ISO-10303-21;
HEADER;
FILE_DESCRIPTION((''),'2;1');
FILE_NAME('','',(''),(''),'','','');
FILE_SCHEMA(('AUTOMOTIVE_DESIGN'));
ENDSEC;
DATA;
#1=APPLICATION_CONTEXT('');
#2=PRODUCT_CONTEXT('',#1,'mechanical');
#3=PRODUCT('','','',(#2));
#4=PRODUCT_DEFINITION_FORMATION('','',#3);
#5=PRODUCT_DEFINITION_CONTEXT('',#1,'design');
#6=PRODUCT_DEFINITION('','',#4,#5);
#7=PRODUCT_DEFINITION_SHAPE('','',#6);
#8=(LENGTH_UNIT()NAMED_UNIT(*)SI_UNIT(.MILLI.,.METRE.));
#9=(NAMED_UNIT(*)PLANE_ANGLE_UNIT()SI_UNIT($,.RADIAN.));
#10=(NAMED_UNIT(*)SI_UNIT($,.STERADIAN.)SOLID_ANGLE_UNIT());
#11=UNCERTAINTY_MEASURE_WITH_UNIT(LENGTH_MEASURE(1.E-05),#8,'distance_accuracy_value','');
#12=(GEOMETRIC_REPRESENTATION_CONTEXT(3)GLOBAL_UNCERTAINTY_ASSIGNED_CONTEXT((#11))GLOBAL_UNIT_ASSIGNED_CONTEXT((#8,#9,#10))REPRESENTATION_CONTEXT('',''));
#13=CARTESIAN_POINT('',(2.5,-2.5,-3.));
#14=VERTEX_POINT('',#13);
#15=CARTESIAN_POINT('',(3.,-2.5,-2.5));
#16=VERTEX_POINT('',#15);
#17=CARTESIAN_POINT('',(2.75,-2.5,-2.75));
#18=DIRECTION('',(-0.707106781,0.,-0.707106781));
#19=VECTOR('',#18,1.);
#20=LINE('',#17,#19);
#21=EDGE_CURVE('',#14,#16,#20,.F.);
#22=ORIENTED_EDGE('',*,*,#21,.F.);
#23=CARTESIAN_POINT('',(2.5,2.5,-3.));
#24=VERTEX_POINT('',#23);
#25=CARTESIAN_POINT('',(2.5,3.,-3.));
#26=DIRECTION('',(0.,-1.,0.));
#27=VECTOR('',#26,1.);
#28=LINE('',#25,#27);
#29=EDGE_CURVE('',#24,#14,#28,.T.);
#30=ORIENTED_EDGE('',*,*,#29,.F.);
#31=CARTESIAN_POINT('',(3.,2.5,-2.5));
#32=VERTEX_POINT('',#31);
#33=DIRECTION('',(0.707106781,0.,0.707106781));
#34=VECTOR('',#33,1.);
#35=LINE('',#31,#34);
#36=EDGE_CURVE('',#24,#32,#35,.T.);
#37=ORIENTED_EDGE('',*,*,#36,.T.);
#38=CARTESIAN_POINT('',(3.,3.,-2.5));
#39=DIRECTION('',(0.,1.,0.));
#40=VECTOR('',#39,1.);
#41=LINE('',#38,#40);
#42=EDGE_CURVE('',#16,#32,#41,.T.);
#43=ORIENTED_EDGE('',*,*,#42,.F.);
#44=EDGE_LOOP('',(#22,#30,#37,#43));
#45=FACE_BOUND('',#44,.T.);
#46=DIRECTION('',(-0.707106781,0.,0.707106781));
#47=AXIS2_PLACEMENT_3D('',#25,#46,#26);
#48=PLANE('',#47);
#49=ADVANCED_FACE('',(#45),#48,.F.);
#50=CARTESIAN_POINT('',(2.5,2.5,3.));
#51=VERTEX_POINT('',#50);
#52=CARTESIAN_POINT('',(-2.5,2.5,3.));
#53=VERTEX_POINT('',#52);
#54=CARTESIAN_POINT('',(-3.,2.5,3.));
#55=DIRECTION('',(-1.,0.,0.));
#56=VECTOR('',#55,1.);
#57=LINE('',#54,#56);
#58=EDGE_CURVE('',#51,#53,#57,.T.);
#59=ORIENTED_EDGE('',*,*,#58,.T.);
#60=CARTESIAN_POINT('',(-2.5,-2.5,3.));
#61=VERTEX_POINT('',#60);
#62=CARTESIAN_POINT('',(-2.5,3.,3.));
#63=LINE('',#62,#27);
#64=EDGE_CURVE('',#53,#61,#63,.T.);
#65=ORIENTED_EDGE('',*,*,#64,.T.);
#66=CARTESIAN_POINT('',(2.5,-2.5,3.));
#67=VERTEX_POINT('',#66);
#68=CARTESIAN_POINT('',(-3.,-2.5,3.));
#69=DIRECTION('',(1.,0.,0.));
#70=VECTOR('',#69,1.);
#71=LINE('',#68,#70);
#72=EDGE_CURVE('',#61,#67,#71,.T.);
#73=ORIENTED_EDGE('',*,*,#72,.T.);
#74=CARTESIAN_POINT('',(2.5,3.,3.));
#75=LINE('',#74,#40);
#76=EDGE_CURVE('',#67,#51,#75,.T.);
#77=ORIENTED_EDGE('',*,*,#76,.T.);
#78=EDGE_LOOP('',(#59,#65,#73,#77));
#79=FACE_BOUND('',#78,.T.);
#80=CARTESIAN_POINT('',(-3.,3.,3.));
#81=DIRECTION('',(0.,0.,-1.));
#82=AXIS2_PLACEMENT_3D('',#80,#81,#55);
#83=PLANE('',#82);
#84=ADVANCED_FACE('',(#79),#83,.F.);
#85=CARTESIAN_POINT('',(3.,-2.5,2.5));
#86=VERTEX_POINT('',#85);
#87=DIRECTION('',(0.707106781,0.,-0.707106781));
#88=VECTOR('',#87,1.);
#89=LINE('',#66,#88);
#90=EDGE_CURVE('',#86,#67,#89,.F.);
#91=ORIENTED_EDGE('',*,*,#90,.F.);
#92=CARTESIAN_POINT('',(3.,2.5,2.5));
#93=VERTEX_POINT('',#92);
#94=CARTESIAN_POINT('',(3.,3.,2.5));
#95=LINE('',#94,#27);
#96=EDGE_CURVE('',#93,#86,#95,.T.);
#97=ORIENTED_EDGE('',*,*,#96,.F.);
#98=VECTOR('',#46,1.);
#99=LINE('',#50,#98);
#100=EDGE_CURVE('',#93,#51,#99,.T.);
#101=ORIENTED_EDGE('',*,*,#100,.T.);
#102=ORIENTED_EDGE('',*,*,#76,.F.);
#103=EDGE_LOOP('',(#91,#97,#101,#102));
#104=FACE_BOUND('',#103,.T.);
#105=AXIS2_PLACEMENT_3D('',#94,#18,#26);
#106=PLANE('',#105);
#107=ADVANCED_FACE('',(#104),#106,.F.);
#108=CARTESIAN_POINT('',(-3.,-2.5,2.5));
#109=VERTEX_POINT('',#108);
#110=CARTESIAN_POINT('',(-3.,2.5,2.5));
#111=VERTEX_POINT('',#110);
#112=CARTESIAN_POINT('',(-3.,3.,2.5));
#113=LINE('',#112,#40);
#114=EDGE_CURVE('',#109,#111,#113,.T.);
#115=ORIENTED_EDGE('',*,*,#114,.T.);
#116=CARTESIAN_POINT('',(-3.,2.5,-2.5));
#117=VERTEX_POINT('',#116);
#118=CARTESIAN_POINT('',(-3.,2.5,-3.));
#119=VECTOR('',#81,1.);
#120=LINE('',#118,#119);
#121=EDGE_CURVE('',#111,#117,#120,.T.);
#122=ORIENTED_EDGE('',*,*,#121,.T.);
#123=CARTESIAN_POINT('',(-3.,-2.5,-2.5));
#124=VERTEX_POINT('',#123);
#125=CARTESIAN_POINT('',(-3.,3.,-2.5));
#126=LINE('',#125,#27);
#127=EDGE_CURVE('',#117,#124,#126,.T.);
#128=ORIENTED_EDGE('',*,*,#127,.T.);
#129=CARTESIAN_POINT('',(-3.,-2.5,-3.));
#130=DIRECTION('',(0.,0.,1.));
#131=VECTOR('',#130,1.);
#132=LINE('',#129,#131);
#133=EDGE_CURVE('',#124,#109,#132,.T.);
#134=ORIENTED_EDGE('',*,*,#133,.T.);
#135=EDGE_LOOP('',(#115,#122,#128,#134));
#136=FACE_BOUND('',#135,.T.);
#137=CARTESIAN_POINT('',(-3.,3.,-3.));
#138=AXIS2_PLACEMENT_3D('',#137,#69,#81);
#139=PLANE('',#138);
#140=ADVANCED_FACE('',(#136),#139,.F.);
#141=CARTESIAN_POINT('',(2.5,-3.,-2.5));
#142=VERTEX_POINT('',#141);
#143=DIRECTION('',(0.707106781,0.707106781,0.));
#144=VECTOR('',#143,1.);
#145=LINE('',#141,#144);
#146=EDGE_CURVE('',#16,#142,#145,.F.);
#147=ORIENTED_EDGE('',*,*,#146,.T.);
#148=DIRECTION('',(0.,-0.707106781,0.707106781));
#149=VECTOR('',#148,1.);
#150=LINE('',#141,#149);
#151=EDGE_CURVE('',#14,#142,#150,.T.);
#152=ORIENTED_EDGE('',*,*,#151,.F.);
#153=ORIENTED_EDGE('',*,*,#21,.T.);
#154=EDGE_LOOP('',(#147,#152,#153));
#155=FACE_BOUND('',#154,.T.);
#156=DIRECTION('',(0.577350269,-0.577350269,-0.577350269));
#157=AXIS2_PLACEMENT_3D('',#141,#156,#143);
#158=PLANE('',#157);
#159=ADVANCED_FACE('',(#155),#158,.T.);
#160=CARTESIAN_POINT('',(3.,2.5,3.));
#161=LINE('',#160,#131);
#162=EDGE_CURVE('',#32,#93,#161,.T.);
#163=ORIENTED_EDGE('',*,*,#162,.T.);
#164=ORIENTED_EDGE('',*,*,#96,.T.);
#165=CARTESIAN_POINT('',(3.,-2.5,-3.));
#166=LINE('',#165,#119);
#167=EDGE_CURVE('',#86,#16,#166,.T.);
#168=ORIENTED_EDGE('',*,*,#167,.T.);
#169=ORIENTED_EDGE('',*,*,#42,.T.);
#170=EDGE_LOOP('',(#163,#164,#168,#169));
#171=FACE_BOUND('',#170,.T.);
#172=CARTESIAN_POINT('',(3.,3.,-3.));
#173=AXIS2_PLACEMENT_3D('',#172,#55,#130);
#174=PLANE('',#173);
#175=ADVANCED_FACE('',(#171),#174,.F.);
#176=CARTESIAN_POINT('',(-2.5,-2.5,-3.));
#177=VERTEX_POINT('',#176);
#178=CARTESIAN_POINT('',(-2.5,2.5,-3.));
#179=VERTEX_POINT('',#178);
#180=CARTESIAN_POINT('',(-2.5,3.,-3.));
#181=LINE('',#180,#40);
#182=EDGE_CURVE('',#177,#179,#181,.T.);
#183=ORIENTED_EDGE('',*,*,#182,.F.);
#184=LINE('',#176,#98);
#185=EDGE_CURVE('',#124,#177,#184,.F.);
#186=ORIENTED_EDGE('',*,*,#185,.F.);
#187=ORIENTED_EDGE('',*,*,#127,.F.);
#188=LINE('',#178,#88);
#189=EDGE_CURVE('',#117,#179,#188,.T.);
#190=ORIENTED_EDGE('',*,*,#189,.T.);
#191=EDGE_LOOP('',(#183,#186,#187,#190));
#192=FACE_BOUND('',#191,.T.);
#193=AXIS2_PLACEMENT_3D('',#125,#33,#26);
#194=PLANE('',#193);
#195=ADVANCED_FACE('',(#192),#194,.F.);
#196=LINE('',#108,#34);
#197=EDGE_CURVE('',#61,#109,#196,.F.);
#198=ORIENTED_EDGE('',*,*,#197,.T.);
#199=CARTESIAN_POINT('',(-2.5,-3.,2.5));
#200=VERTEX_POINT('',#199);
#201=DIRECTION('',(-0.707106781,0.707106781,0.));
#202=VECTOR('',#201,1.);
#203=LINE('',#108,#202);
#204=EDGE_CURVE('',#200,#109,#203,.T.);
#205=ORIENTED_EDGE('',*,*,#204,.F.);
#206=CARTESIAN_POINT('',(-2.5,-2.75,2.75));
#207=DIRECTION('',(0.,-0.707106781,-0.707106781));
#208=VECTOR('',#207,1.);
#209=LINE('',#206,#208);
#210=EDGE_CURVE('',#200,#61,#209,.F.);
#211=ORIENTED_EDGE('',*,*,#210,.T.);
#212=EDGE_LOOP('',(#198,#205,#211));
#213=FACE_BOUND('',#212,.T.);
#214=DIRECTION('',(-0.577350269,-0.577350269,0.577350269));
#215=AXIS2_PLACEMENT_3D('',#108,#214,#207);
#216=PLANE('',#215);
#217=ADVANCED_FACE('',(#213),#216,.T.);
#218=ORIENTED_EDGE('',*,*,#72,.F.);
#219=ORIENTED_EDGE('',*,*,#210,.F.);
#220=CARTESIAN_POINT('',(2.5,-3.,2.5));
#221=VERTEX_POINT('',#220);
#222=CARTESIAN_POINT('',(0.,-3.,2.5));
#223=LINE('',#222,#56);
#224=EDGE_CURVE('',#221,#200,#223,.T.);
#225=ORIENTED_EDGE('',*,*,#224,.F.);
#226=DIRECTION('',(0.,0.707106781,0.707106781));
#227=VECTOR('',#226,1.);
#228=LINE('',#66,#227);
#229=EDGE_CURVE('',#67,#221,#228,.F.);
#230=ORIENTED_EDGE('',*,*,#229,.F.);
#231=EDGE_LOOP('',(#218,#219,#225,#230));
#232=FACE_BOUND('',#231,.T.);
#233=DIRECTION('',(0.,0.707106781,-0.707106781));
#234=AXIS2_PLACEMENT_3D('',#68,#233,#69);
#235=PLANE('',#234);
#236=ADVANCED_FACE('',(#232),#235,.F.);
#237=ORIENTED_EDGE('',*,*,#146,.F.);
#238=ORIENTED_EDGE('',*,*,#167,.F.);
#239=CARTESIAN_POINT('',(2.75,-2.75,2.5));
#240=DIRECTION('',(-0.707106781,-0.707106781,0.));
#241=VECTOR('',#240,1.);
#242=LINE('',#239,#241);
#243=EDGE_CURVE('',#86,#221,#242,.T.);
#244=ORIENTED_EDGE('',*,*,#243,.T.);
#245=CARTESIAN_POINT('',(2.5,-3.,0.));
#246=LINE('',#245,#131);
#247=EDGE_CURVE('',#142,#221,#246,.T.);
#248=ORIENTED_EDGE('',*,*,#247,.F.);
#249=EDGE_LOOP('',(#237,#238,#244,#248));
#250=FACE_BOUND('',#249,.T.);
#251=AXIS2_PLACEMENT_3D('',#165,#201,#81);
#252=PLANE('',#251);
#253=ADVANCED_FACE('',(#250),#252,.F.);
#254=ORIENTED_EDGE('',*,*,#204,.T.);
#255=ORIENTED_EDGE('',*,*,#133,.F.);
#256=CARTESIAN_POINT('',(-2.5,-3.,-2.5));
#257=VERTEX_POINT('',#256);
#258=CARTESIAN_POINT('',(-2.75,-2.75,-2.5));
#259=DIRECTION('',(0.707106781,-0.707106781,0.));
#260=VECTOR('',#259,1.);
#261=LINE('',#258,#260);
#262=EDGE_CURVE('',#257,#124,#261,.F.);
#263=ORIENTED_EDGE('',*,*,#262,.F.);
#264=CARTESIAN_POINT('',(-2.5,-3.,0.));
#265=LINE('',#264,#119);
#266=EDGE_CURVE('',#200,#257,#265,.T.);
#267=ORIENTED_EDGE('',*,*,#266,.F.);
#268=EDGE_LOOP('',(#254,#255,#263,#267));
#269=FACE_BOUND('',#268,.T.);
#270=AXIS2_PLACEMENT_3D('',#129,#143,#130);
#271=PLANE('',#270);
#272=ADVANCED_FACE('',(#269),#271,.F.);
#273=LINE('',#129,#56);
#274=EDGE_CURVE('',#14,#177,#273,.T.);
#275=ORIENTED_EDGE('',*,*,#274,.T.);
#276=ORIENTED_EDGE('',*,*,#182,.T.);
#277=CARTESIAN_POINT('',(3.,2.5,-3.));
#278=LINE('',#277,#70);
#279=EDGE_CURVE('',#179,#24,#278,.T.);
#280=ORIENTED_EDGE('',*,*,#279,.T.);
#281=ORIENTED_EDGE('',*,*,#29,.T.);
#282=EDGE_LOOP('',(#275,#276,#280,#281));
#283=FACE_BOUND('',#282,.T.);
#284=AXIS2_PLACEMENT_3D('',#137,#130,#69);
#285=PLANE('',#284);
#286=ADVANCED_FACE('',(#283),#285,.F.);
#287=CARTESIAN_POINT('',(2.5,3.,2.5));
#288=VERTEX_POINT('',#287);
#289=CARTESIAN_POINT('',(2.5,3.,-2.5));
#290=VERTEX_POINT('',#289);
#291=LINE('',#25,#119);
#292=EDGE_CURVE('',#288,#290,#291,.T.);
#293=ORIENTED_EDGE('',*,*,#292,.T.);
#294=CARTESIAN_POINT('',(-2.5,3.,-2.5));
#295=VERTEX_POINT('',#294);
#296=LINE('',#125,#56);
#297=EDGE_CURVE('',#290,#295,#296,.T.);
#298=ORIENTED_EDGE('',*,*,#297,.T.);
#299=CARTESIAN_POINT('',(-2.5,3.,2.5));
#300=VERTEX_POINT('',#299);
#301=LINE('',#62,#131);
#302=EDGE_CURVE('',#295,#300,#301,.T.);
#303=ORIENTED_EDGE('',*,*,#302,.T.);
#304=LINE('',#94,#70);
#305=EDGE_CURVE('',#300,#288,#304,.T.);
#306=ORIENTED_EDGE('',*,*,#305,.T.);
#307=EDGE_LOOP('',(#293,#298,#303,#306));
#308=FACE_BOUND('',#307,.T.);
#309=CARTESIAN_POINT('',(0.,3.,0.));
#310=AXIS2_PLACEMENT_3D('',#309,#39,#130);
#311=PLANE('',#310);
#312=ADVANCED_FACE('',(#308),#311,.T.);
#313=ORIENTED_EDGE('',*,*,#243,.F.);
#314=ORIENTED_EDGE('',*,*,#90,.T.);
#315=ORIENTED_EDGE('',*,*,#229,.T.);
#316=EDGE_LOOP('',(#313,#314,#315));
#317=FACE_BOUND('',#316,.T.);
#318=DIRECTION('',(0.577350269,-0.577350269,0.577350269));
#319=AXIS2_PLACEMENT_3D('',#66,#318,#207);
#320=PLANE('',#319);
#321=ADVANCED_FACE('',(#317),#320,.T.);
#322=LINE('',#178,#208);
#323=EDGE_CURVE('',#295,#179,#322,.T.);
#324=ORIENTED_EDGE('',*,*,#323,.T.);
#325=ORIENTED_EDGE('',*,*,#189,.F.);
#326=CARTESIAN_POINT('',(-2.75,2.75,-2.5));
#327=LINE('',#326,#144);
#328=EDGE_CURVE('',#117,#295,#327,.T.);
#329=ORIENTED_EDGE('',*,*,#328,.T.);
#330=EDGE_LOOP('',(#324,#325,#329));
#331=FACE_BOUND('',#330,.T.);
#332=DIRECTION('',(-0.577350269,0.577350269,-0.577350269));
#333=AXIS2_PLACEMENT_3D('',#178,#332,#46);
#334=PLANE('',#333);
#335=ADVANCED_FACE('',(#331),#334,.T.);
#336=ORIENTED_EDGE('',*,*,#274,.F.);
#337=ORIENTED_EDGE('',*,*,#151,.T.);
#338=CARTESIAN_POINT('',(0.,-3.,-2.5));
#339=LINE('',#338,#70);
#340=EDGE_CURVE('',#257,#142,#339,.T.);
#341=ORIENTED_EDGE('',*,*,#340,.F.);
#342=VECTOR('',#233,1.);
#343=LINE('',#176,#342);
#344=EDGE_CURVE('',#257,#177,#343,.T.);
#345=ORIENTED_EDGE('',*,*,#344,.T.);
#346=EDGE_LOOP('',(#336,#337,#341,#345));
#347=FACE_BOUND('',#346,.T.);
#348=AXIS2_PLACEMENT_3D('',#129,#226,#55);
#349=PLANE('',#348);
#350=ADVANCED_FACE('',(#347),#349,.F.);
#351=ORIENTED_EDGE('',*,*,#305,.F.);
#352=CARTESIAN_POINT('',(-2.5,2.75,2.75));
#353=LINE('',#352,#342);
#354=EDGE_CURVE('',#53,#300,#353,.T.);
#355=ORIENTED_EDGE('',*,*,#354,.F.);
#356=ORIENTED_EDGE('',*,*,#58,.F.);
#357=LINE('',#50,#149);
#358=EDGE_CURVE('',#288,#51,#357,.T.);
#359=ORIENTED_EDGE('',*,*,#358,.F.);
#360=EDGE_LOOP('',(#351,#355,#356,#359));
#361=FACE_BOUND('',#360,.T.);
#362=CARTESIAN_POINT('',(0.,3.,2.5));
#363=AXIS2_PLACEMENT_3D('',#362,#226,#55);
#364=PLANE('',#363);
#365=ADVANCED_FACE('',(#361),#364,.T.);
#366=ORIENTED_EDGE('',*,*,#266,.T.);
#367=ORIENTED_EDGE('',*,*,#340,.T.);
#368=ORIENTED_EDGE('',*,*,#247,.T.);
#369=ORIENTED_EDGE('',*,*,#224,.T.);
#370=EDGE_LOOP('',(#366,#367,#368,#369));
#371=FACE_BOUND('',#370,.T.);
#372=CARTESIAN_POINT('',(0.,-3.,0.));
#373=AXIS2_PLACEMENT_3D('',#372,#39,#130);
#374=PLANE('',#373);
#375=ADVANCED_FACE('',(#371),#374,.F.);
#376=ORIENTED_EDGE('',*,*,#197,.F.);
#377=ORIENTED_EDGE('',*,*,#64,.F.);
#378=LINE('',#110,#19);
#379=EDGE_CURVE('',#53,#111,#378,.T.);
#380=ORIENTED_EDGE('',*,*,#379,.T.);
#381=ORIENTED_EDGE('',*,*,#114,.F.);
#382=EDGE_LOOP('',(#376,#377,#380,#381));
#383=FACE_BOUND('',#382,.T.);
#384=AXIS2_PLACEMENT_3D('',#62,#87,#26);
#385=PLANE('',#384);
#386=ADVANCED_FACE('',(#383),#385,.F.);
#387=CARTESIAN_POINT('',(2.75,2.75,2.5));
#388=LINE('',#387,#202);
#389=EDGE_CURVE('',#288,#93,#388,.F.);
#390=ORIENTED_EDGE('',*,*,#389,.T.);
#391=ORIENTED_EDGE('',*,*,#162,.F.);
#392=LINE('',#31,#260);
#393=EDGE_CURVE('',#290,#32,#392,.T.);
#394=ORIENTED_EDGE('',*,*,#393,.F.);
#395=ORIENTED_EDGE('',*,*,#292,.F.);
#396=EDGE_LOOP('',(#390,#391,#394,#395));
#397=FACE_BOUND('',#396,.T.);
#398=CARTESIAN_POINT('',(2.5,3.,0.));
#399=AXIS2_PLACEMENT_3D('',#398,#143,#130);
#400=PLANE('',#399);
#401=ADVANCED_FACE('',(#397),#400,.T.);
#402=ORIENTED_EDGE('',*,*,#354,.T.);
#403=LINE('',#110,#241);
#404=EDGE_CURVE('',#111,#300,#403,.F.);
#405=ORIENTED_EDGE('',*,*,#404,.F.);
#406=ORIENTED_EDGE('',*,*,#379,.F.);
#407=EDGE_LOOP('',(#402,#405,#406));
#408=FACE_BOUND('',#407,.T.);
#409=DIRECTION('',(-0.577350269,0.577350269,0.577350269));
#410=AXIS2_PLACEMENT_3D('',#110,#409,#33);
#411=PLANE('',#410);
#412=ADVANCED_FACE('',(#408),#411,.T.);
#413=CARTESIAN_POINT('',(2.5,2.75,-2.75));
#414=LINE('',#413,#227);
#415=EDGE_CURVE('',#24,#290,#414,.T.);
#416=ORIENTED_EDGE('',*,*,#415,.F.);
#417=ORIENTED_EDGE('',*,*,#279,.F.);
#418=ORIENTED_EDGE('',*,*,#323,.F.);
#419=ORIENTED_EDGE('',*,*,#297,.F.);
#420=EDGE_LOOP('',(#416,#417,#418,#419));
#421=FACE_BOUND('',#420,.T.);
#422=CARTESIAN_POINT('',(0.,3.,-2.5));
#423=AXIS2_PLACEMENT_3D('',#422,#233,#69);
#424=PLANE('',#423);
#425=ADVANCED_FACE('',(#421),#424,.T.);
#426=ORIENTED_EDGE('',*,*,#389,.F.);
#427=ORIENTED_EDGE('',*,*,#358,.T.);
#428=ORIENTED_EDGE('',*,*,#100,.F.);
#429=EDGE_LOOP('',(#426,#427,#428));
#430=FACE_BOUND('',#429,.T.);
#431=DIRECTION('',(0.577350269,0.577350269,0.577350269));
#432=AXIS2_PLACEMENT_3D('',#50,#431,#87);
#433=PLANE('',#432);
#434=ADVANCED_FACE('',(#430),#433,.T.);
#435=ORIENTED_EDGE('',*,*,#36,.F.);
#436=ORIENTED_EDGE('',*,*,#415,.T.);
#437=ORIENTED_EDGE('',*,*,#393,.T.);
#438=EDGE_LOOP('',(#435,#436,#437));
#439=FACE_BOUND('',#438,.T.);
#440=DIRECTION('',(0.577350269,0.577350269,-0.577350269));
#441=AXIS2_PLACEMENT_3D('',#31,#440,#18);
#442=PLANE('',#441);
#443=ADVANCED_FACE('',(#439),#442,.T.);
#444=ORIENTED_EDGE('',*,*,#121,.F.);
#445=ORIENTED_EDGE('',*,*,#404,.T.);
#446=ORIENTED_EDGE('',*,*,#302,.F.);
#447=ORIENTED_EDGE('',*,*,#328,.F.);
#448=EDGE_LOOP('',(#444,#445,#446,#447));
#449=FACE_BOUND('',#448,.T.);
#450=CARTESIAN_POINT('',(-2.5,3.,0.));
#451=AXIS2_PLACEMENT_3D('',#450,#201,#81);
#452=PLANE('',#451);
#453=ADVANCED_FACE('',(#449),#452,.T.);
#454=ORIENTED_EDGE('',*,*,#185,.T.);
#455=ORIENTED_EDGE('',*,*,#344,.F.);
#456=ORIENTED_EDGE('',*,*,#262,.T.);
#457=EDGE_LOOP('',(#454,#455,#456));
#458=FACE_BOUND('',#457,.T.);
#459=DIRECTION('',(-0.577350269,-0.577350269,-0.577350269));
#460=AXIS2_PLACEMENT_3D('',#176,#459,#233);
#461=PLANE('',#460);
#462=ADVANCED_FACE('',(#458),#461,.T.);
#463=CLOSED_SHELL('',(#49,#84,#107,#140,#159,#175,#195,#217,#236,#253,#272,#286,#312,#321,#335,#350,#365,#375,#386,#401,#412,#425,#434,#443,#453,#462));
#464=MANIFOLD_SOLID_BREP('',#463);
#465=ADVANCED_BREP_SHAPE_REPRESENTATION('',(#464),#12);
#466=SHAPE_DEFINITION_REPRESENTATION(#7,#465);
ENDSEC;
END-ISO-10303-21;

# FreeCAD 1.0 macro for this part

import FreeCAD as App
import Part
import Sketcher
from FreeCAD import Vector

doc = App.newDocument("Part")
body = doc.addObject("PartDesign::Body", "Body")

sketch1 = body.newObject("Sketcher::SketchObject", "Sketch")
sketch1.AttachmentSupport = (doc.getObject("XZ_Plane"), [""])
sketch1.MapMode = "FlatFace"
sketch1.addGeometry(Part.LineSegment(Vector(-3, -3, 0), Vector(-3, 3, 0)), False)
sketch1.addGeometry(Part.LineSegment(Vector(-3, 3, 0), Vector(3, 3, 0)), False)
sketch1.addGeometry(Part.LineSegment(Vector(3, 3, 0), Vector(3, -3, 0)), False)
sketch1.addGeometry(Part.LineSegment(Vector(3, -3, 0), Vector(-3, -3, 0)), False)
sketch1.addConstraint(Sketcher.Constraint("Coincident", 0, 2, 1, 1))
sketch1.addConstraint(Sketcher.Constraint("Coincident", 1, 2, 2, 1))
sketch1.addConstraint(Sketcher.Constraint("Coincident", 2, 2, 3, 1))
sketch1.addConstraint(Sketcher.Constraint("Coincident", 3, 2, 0, 1))
sketch1.addConstraint(Sketcher.Constraint("Vertical", 0))
sketch1.addConstraint(Sketcher.Constraint("Horizontal", 1))
sketch1.addConstraint(Sketcher.Constraint("Vertical", 2))
sketch1.addConstraint(Sketcher.Constraint("Horizontal", 3))
sketch1.addConstraint(Sketcher.Constraint("Symmetric", 0, 2, 2, 2, -1, 1))
sketch1.addConstraint(Sketcher.Constraint("Equal", 3, 0))
sketch1.addConstraint(Sketcher.Constraint("DistanceX", 1, 1, 1, 2, 6.0))
pad1 = body.newObject("PartDesign::Pad", "Pad")
pad1.Profile = sketch1
pad1.Length = 6
pad1.Midplane = True
doc.recompute()

chamfer = body.newObject("PartDesign::Chamfer", "Chamfer")
chamfer.Base = (pad1, ["Edge1"])
chamfer.UseAllEdges = True
chamfer.Size = 0.5

doc.recompute()
